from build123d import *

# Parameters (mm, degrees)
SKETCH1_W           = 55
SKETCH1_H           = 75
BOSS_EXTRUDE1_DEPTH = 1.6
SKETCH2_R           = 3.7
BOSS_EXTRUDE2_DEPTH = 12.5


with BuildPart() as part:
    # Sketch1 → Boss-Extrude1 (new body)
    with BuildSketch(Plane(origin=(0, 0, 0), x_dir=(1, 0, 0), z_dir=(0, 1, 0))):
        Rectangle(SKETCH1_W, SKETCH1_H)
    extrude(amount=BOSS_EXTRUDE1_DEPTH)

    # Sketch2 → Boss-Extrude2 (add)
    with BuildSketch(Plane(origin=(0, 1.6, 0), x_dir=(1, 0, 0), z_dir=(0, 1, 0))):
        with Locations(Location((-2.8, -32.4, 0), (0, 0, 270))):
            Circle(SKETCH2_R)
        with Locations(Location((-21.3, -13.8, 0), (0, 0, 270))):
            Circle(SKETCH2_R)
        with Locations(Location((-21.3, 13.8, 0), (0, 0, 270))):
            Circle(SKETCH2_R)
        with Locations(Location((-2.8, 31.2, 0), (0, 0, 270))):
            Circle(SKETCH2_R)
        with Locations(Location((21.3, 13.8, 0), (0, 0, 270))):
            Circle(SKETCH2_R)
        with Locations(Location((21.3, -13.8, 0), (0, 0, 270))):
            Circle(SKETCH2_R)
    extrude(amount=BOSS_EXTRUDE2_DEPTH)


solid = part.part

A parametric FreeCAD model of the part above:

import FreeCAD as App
import Part
import Sketcher
from FreeCAD import Vector
Q = App.Units.Quantity

doc = App.newDocument("Part")
params = doc.addObject("Spreadsheet::Sheet", "Params")
for row, (alias, value) in enumerate([
    ("sketch1_width", "55 mm"),
    ("sketch1_height", "75 mm"),
    ("pad1_length", "1.6 mm"),
    ("sketch2_diameter", "7.4 mm"),
    ("pad2_length", "12.5 mm"),
], start=1):
    params.set(f"A{row}", alias)
    params.set(f"B{row}", "=" + value)
    params.setAlias(f"B{row}", alias)

body = doc.addObject("PartDesign::Body", "Body")

# Sketch on XZ plane
sketch1 = body.newObject("Sketcher::SketchObject", "Sketch")
sketch1.AttachmentSupport = (doc.getObject("XZ_Plane"), [""])
sketch1.MapMode = "FlatFace"
sketch1.addGeometry([
    Part.LineSegment(Vector(-27.5, -37.5, 0), Vector(-27.5, 37.5, 0)),
    Part.LineSegment(Vector(-27.5, 37.5, 0), Vector(27.5, 37.5, 0)),
    Part.LineSegment(Vector(27.5, 37.5, 0), Vector(27.5, -37.5, 0)),
    Part.LineSegment(Vector(27.5, -37.5, 0), Vector(-27.5, -37.5, 0)),
], False)
sketch1.addConstraint([
    Sketcher.Constraint("Coincident", 0, 2, 1, 1),
    Sketcher.Constraint("Coincident", 1, 2, 2, 1),
    Sketcher.Constraint("Coincident", 2, 2, 3, 1),
    Sketcher.Constraint("Coincident", 3, 2, 0, 1),
    Sketcher.Constraint("Vertical", 0),
    Sketcher.Constraint("Horizontal", 1),
    Sketcher.Constraint("Vertical", 2),
    Sketcher.Constraint("Horizontal", 3),
    Sketcher.Constraint("Symmetric", 0, 2, 2, 2, -1, 1),
    Sketcher.Constraint("DistanceX", 1, 1, 1, 2, Q("55 mm")),
    Sketcher.Constraint("DistanceY", 0, 1, 0, 2, Q("75 mm")),
])
sketch1.setExpression("Constraints[9]", "Params.sketch1_width")
sketch1.setExpression("Constraints[10]", "Params.sketch1_height")
pad1 = body.newObject("PartDesign::Pad", "Pad")
pad1.Profile = sketch1
pad1.setExpression("Length", "Params.pad1_length")
pad1.Reversed = True

# Sketch on XZ plane
sketch2 = body.newObject("Sketcher::SketchObject", "Sketch001")
sketch2.AttachmentSupport = (doc.getObject("XZ_Plane"), [""])
sketch2.MapMode = "FlatFace"
sketch2.AttachmentOffset = App.Placement(Vector(0, 0, -1.6), App.Rotation())
sketch2.addGeometry([
    Part.Circle(Vector(-2.8, 32.4, 0), Vector(0, 0, 1), 3.7),  # 0
    Part.Circle(Vector(-21.3, 13.8, 0), Vector(0, 0, 1), 3.7),  # 1
    Part.Circle(Vector(-21.3, -13.8, 0), Vector(0, 0, 1), 3.7),  # 2
    Part.Circle(Vector(-2.8, -31.2, 0), Vector(0, 0, 1), 3.7),  # 3
    Part.Circle(Vector(21.3, -13.8, 0), Vector(0, 0, 1), 3.7),  # 4
    Part.Circle(Vector(21.3, 13.8, 0), Vector(0, 0, 1), 3.7),  # 5
], False)
sketch2.addConstraint([
    Sketcher.Constraint("Equal", 0, 1),
    Sketcher.Constraint("Equal", 1, 2),
    Sketcher.Constraint("Equal", 2, 3),
    Sketcher.Constraint("Equal", 3, 4),
    Sketcher.Constraint("Equal", 4, 5),
    Sketcher.Constraint("Symmetric", 1, 3, 4, 3, -1, 1),
    Sketcher.Constraint("Symmetric", 2, 3, 5, 3, -1, 1),
    Sketcher.Constraint("Symmetric", 2, 3, 4, 3, -2),
    Sketcher.Constraint("Vertical", 0, 3, 3, 3),
    Sketcher.Constraint("Diameter", 0, Q("7.4 mm")),
    Sketcher.Constraint("DistanceY", 3, 3, 1, 3, Q("45 mm")),
    Sketcher.Constraint("DistanceX", 0, 3, -1, 1, Q("2.8 mm")),
    Sketcher.Constraint("DistanceY", -1, 1, 0, 3, Q("32.4 mm")),
    Sketcher.Constraint("DistanceX", 1, 3, -1, 1, Q("21.3 mm")),
    Sketcher.Constraint("DistanceY", -1, 1, 1, 3, Q("13.8 mm")),
])
sketch2.setExpression("Constraints[9]", "Params.sketch2_diameter")
pad2 = body.newObject("PartDesign::Pad", "Pad001")
pad2.Profile = sketch2
pad2.setExpression("Length", "Params.pad2_length")
pad2.Reversed = True

doc.recompute()
